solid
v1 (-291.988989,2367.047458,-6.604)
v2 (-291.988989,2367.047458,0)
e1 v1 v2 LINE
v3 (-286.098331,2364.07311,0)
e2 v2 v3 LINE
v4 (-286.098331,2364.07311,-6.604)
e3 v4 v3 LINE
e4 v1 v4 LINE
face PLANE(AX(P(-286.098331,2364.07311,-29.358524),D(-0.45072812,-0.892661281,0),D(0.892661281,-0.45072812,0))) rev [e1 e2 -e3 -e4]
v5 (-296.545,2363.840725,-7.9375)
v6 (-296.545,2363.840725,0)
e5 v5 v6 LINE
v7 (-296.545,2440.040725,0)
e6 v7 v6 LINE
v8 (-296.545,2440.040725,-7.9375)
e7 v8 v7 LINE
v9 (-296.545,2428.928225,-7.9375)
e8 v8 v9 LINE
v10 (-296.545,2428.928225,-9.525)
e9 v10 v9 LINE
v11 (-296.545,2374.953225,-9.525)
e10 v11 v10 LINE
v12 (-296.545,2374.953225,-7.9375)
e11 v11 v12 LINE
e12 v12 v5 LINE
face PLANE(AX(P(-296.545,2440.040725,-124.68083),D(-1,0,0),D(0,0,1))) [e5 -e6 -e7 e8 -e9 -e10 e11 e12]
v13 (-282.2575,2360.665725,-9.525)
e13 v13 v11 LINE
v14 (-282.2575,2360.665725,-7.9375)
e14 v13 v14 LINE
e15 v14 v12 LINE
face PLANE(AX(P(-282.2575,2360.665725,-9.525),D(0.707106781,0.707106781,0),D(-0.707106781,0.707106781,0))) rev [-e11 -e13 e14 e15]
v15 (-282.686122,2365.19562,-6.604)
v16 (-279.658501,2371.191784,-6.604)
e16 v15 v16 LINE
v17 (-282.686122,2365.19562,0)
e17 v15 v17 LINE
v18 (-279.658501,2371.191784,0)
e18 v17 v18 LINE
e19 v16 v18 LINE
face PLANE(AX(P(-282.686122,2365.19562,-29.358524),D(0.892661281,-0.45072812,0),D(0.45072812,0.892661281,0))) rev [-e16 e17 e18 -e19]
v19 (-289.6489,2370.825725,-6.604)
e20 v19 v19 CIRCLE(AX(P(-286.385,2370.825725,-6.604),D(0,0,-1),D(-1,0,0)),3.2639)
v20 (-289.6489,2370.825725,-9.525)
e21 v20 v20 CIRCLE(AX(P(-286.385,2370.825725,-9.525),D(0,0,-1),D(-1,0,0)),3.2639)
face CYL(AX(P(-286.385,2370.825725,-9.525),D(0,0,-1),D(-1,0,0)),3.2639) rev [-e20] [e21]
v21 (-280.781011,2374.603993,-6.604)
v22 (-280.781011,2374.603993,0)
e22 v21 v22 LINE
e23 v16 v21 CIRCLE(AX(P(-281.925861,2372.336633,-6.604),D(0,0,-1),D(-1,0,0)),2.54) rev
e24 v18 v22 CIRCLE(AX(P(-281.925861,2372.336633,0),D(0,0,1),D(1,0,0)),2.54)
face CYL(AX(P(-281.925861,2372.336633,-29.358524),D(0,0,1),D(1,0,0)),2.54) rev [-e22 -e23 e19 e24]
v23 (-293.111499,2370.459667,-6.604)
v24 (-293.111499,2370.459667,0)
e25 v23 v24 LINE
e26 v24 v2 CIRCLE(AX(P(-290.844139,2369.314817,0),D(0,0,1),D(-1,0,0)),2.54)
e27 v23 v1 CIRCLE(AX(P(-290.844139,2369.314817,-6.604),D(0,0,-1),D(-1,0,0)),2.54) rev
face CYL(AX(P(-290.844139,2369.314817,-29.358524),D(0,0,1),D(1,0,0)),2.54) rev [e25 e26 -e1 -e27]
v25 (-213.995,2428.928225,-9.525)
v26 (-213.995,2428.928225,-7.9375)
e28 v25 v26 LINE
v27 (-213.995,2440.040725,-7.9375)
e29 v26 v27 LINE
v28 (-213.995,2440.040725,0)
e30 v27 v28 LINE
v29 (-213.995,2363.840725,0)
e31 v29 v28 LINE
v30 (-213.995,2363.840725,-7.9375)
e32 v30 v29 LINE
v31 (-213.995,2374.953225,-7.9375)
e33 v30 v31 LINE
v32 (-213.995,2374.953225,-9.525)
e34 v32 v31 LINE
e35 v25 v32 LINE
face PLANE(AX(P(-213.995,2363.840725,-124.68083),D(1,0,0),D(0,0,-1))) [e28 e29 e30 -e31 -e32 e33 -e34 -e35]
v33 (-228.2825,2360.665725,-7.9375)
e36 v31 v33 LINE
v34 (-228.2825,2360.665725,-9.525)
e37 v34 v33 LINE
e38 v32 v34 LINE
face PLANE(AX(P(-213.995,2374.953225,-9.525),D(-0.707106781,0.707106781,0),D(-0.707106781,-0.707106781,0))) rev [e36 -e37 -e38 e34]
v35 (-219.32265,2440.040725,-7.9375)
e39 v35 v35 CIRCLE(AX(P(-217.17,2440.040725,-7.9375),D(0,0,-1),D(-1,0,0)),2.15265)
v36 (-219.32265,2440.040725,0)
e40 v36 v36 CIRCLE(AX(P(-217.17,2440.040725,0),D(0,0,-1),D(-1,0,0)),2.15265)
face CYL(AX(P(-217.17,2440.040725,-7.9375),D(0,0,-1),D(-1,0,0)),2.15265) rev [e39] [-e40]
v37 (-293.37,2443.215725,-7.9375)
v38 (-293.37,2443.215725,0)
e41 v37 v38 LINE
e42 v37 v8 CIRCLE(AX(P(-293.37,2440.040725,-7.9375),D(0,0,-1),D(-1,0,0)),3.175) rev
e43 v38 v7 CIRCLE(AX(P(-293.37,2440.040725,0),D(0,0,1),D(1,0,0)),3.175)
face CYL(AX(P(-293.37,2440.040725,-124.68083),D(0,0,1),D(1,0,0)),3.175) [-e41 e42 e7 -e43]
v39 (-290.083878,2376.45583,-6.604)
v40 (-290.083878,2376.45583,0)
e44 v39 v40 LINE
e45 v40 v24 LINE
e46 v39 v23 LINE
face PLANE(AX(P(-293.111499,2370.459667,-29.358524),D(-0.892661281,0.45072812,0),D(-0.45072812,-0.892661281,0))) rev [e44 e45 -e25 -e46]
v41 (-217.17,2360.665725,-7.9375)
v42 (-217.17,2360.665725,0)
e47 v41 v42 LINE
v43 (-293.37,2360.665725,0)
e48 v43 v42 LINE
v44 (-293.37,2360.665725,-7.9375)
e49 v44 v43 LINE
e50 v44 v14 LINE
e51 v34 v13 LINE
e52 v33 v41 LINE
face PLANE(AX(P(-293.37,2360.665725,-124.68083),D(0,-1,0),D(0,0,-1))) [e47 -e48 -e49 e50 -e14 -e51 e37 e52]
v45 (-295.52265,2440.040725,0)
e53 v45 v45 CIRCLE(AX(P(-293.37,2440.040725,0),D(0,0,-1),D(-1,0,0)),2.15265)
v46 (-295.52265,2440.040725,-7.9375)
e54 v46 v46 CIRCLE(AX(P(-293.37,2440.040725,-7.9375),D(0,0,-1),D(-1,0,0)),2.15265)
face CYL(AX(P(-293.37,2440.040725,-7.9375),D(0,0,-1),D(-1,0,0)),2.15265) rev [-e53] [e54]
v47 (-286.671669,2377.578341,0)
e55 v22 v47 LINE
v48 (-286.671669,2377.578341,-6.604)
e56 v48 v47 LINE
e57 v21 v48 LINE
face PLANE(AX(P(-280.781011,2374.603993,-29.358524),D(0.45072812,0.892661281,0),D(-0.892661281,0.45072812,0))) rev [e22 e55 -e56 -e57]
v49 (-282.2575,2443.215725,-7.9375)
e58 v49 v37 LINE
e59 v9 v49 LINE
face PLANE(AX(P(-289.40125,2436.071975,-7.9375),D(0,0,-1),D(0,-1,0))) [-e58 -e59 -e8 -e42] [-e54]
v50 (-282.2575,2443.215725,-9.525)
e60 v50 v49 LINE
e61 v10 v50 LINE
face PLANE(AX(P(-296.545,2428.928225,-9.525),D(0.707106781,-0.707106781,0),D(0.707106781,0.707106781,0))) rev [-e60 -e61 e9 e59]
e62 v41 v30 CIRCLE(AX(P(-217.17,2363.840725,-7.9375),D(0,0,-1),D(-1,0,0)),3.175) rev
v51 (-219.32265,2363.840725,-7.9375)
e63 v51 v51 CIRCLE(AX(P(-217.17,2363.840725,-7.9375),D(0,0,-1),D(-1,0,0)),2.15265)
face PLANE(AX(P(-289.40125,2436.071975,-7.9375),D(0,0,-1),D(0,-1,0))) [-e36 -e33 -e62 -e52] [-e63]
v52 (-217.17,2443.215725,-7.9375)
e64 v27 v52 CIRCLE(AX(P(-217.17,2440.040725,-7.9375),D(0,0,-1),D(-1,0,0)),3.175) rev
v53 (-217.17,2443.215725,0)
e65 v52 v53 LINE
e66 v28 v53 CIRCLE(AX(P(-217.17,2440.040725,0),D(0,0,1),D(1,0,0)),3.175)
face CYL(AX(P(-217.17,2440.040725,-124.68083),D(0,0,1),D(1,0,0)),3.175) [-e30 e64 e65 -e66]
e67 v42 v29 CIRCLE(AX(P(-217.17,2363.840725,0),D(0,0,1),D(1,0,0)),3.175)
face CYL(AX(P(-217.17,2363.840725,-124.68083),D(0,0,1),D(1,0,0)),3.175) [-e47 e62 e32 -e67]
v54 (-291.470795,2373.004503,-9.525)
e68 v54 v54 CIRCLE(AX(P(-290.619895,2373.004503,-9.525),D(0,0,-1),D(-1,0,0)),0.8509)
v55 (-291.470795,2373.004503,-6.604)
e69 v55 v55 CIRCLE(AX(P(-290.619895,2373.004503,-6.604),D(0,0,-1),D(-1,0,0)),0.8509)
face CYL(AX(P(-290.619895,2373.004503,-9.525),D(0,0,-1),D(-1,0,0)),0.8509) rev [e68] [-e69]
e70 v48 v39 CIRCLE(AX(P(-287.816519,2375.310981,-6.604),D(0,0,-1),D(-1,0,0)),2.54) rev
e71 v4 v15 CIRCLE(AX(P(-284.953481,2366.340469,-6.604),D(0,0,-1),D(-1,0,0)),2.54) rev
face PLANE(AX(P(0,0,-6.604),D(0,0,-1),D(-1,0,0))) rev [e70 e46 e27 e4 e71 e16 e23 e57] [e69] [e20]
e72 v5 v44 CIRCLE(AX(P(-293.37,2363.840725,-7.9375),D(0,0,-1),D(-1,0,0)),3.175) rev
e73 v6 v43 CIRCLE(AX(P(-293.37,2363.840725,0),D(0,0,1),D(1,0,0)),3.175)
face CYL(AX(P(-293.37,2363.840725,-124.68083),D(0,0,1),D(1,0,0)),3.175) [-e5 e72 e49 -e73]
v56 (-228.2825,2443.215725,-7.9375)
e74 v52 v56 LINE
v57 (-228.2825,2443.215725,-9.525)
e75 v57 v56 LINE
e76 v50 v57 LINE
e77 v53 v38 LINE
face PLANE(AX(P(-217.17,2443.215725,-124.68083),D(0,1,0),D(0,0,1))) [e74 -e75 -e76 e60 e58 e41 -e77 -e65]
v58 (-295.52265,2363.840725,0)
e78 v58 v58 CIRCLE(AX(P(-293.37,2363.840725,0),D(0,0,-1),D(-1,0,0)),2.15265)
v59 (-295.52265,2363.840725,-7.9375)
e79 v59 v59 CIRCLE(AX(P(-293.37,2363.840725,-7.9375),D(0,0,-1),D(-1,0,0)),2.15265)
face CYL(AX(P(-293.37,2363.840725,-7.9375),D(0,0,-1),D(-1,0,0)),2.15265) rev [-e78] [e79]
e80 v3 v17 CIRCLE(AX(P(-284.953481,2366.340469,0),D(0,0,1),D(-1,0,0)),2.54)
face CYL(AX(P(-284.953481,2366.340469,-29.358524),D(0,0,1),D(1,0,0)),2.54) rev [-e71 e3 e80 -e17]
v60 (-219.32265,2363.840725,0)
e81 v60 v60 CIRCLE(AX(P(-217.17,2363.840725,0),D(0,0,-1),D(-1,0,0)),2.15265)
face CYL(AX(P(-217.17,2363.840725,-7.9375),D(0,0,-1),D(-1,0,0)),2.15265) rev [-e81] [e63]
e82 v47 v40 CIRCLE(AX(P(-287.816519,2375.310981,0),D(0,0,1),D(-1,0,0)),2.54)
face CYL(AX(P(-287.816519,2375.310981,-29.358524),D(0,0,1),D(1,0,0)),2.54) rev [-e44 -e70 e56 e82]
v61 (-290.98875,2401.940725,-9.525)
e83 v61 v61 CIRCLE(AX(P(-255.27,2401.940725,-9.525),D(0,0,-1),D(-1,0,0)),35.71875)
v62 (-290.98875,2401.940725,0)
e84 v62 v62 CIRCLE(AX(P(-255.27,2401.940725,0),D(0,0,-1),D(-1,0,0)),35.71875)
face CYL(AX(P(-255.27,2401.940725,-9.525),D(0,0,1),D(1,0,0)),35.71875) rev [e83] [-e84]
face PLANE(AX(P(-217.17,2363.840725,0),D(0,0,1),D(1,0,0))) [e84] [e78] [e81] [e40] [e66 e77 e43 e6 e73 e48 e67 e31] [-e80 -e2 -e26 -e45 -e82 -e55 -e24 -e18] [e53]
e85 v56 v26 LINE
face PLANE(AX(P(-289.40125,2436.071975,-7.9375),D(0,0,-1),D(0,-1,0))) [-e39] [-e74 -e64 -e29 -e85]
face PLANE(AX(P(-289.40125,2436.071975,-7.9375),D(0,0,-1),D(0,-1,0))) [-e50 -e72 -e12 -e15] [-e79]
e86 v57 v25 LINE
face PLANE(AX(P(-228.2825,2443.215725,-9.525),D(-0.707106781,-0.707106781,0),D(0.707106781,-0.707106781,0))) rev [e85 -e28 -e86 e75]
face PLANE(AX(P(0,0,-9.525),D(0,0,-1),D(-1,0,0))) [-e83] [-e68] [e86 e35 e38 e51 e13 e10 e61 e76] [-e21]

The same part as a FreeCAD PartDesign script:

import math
import FreeCAD as App
import Part
import Sketcher
from FreeCAD import Vector
Q = App.Units.Quantity


def add_polygon(sketch, points):
    """Adds a closed chain of lines whose ends are joined by coincident constraints."""
    first, n = sketch.GeometryCount, len(points)
    for a, b in zip(points, points[1:] + points[:1]):
        sketch.addGeometry(Part.LineSegment(App.Vector(*a, 0), App.Vector(*b, 0)), False)
    for i in range(n):
        sketch.addConstraint(Sketcher.Constraint("Coincident", first + i, 2, first + (i + 1) % n, 1))

doc = App.newDocument("Part")
body = doc.addObject("PartDesign::Body", "Body")

sketch1 = doc.addObject("Sketcher::SketchObject", "Sketch")
body.addObject(sketch1)
sketch1.AttachmentSupport = (doc.XY_Plane, [""])
sketch1.MapMode = "FlatFace"
sketch1.addGeometry(Part.LineSegment(Vector(-214, 2363.8, 0), Vector(-214, 2440, 0)), False)
sketch1.addGeometry(Part.ArcOfCircle(Part.Circle(Vector(-217.2, 2440, 0), Vector(0, 0, 1), 3.2), math.radians(0), math.radians(90)), False)
sketch1.addGeometry(Part.LineSegment(Vector(-217.2, 2443.2, 0), Vector(-293.4, 2443.2, 0)), False)
sketch1.addGeometry(Part.ArcOfCircle(Part.Circle(Vector(-293.4, 2440, 0), Vector(0, 0, 1), 3.2), math.radians(90), math.radians(180)), False)
sketch1.addGeometry(Part.LineSegment(Vector(-296.5, 2440, 0), Vector(-296.5, 2363.8, 0)), False)
sketch1.addGeometry(Part.ArcOfCircle(Part.Circle(Vector(-293.4, 2363.8, 0), Vector(0, 0, 1), 3.2), math.radians(-180), math.radians(-90)), False)
sketch1.addGeometry(Part.LineSegment(Vector(-293.4, 2360.7, 0), Vector(-217.2, 2360.7, 0)), False)
sketch1.addGeometry(Part.ArcOfCircle(Part.Circle(Vector(-217.2, 2363.8, 0), Vector(0, 0, 1), 3.2), math.radians(-90), math.radians(0)), False)
sketch1.addConstraint(Sketcher.Constraint("Tangent", 0, 2, 1, 1))
sketch1.addConstraint(Sketcher.Constraint("Tangent", 1, 2, 2, 1))
sketch1.addConstraint(Sketcher.Constraint("Tangent", 2, 2, 3, 1))
sketch1.addConstraint(Sketcher.Constraint("Tangent", 3, 2, 4, 1))
sketch1.addConstraint(Sketcher.Constraint("Tangent", 4, 2, 5, 1))
sketch1.addConstraint(Sketcher.Constraint("Tangent", 5, 2, 6, 1))
sketch1.addConstraint(Sketcher.Constraint("Tangent", 6, 2, 7, 1))
sketch1.addConstraint(Sketcher.Constraint("Tangent", 7, 2, 0, 1))
sketch1.addConstraint(Sketcher.Constraint("Vertical", 0))
sketch1.addConstraint(Sketcher.Constraint("Horizontal", 2))
sketch1.addConstraint(Sketcher.Constraint("Vertical", 4))
sketch1.addConstraint(Sketcher.Constraint("Horizontal", 6))
sketch1.addConstraint(Sketcher.Constraint("Equal", 1, 3))
sketch1.addConstraint(Sketcher.Constraint("Equal", 3, 5))
sketch1.addConstraint(Sketcher.Constraint("Equal", 5, 7))
sketch1.addConstraint(Sketcher.Constraint("Equal", 6, 0))
sketch1.addConstraint(Sketcher.Constraint("DistanceX", 2, 2, 2, 1, Q("3 in")))
sketch1.addConstraint(Sketcher.Constraint("Radius", 1, Q("0.125 in")))
sketch1.addConstraint(Sketcher.Constraint("DistanceX", 1, 3, -1, 1, Q("8.55 in")))
sketch1.addConstraint(Sketcher.Constraint("DistanceY", -1, 1, 1, 3, Q("2440.040725 mm")))
pad1 = doc.addObject("PartDesign::Pad", "Pad")
body.addObject(pad1)
pad1.Profile = sketch1
pad1.Length = Q("0.3125 in")
pad1.Reversed = True

sketch2 = doc.addObject("Sketcher::SketchObject", "Sketch001")
body.addObject(sketch2)
sketch2.AttachmentSupport = (doc.XY_Plane, [""])
sketch2.MapMode = "FlatFace"
sketch2.AttachmentOffset = App.Placement(Vector(0, 0, -0.3125 * 25.4), App.Rotation())
add_polygon(sketch2, [(-282, 2361), (-297, 2375), (-297, 2429), (-282, 2443), (-228, 2443), (-214, 2429), (-214, 2375), (-228, 2361)])
sketch2.addGeometry(Part.Circle(Vector(-255, 2402, 0), Vector(0, 0, 1), 36), False)
sketch2.addConstraint(Sketcher.Constraint("Vertical", 1))
sketch2.addConstraint(Sketcher.Constraint("Horizontal", 3))
sketch2.addConstraint(Sketcher.Constraint("Vertical", 5))
sketch2.addConstraint(Sketcher.Constraint("Horizontal", 7))
sketch2.addConstraint(Sketcher.Constraint("Perpendicular", 0, 2))
sketch2.addConstraint(Sketcher.Constraint("Perpendicular", 2, 4))
sketch2.addConstraint(Sketcher.Constraint("Perpendicular", 4, 6))
sketch2.addConstraint(Sketcher.Constraint("Horizontal", 1, 2, 4, 2))
sketch2.addConstraint(Sketcher.Constraint("Horizontal", 0, 2, 5, 2))
sketch2.addConstraint(Sketcher.Constraint("Vertical", 3, 2, 6, 2))
sketch2.addConstraint(Sketcher.Constraint("Vertical", 2, 2, 7, 2))
sketch2.addConstraint(Sketcher.Constraint("Equal", 7, 1))
sketch2.addConstraint(Sketcher.Constraint("Diameter", 8, Q("2.8125 in")))
sketch2.addConstraint(Sketcher.Constraint("DistanceX", 3, 1, 3, 2, Q("2.125 in")))
sketch2.addConstraint(Sketcher.Constraint("DistanceX", 8, 3, -1, 1, Q("10.05 in")))
sketch2.addConstraint(Sketcher.Constraint("DistanceX", 1, 2, 4, 2, Q("3.25 in")))
sketch2.addConstraint(Sketcher.Constraint("DistanceX", 0, 2, -1, 1, Q("11.675 in")))
sketch2.addConstraint(Sketcher.Constraint("DistanceY", 0, 2, 8, 3, Q("1.0625 in")))
sketch2.addConstraint(Sketcher.Constraint("DistanceY", -1, 1, 8, 3, Q("2401.940725 mm")))
pad2 = doc.addObject("PartDesign::Pad", "Pad001")
body.addObject(pad2)
pad2.Profile = sketch2
pad2.Length = Q("0.0625 in")
pad2.Reversed = True

sketch3 = doc.addObject("Sketcher::SketchObject", "Sketch002")
body.addObject(sketch3)
sketch3.AttachmentSupport = (doc.XY_Plane, [""])
sketch3.MapMode = "FlatFace"
sketch3.AttachmentOffset = App.Placement(Vector(0, 0, -0.3125 * 25.4), App.Rotation())
sketch3.addGeometry(Part.Circle(Vector(-255, 2402, 0), Vector(0, 0, 1), 36), False)
sketch3.addConstraint(Sketcher.Constraint("Diameter", 0, Q("2.8125 in")))
sketch3.addConstraint(Sketcher.Constraint("DistanceX", 0, 3, -1, 1, Q("10.05 in")))
sketch3.addConstraint(Sketcher.Constraint("DistanceY", -1, 1, 0, 3, Q("2401.940725 mm")))
pocket1 = doc.addObject("PartDesign::Pocket", "Pocket")
body.addObject(pocket1)
pocket1.Profile = sketch3
pocket1.Type = "ThroughAll"
pocket1.Midplane = True

sketch4 = doc.addObject("Sketcher::SketchObject", "Sketch003")
body.addObject(sketch4)
sketch4.AttachmentSupport = (doc.XY_Plane, [""])
sketch4.MapMode = "FlatFace"
sketch4.AttachmentOffset = App.Placement(Vector(0, 0, -0.3125 * 25.4), App.Rotation())
sketch4.addGeometry(Part.Circle(Vector(-217.2, 2440, 0), Vector(0, 0, 1), 2.2), False)
sketch4.addGeometry(Part.Circle(Vector(-293.4, 2440, 0), Vector(0, 0, 1), 2.2), False)
sketch4.addGeometry(Part.Circle(Vector(-293.4, 2363.8, 0), Vector(0, 0, 1), 2.2), False)
sketch4.addGeometry(Part.Circle(Vector(-217.2, 2363.8, 0), Vector(0, 0, 1), 2.2), False)
sketch4.addConstraint(Sketcher.Constraint("Equal", 0, 1))
sketch4.addConstraint(Sketcher.Constraint("Equal", 1, 2))
sketch4.addConstraint(Sketcher.Constraint("Equal", 2, 3))
sketch4.addConstraint(Sketcher.Constraint("Horizontal", 0, 3, 1, 3))
sketch4.addConstraint(Sketcher.Constraint("Horizontal", 2, 3, 3, 3))
sketch4.addConstraint(Sketcher.Constraint("Vertical", 1, 3, 2, 3))
sketch4.addConstraint(Sketcher.Constraint("Vertical", 0, 3, 3, 3))
sketch4.addConstraint(Sketcher.Constraint("DistanceX", 1, 3, 0, 3, Q("3 in")))
sketch4.addConstraint(Sketcher.Constraint("DistanceY", 2, 3, 1, 3, Q("3 in")))
sketch4.addConstraint(Sketcher.Constraint("Diameter", 0, Q("0.1695 in")))
sketch4.addConstraint(Sketcher.Constraint("DistanceX", 0, 3, -1, 1, Q("8.55 in")))
sketch4.addConstraint(Sketcher.Constraint("DistanceY", -1, 1, 0, 3, Q("2440.040725 mm")))
doc.recompute()
hole = doc.addObject("PartDesign::Hole", "Hole")
body.addObject(hole)
hole.Profile = sketch4
hole.ThreadType = "None"
hole.Diameter = Q("0.1695 in")
hole.DepthType = "ThroughAll"
hole.Reversed = True

sketch5 = doc.addObject("Sketcher::SketchObject", "Sketch004")
body.addObject(sketch5)
sketch5.AttachmentSupport = (doc.XY_Plane, [""])
sketch5.MapMode = "FlatFace"
sketch5.addGeometry(Part.LineSegment(Vector(-292, 2367, 0), Vector(-286.1, 2364.1, 0)), False)
sketch5.addGeometry(Part.ArcOfCircle(Part.Circle(Vector(-285, 2366.3, 0), Vector(0, 0, 1), 2.5), math.radians(-117), math.radians(-27)), False)
sketch5.addGeometry(Part.LineSegment(Vector(-282.7, 2365.2, 0), Vector(-279.7, 2371.2, 0)), False)
sketch5.addGeometry(Part.ArcOfCircle(Part.Circle(Vector(-281.9, 2372.3, 0), Vector(0, 0, 1), 2.5), math.radians(-27), math.radians(63)), False)
sketch5.addGeometry(Part.LineSegment(Vector(-280.8, 2374.6, 0), Vector(-286.7, 2377.6, 0)), False)
sketch5.addGeometry(Part.ArcOfCircle(Part.Circle(Vector(-287.8, 2375.3, 0), Vector(0, 0, 1), 2.5), math.radians(63), math.radians(153)), False)
sketch5.addGeometry(Part.LineSegment(Vector(-290.1, 2376.5, 0), Vector(-293.1, 2370.5, 0)), False)
sketch5.addGeometry(Part.ArcOfCircle(Part.Circle(Vector(-290.8, 2369.3, 0), Vector(0, 0, 1), 2.5), math.radians(153), math.radians(243)), False)
sketch5.addConstraint(Sketcher.Constraint("Tangent", 0, 2, 1, 1))
sketch5.addConstraint(Sketcher.Constraint("Tangent", 1, 2, 2, 1))
sketch5.addConstraint(Sketcher.Constraint("Tangent", 2, 2, 3, 1))
sketch5.addConstraint(Sketcher.Constraint("Tangent", 3, 2, 4, 1))
sketch5.addConstraint(Sketcher.Constraint("Tangent", 4, 2, 5, 1))
sketch5.addConstraint(Sketcher.Constraint("Tangent", 5, 2, 6, 1))
sketch5.addConstraint(Sketcher.Constraint("Tangent", 6, 2, 7, 1))
sketch5.addConstraint(Sketcher.Constraint("Tangent", 7, 2, 0, 1))
sketch5.addConstraint(Sketcher.Constraint("Equal", 1, 3))
sketch5.addConstraint(Sketcher.Constraint("Equal", 3, 5))
sketch5.addConstraint(Sketcher.Constraint("Equal", 5, 7))
sketch5.addConstraint(Sketcher.Constraint("Perpendicular", 0, 2))
sketch5.addConstraint(Sketcher.Constraint("Perpendicular", 2, 4))
sketch5.addConstraint(Sketcher.Constraint("Perpendicular", 4, 6))
sketch5.addConstraint(Sketcher.Constraint("Radius", 1, Q("0.1 in")))
sketch5.addConstraint(Sketcher.Constraint("DistanceX", 2, 2, -1, 1, Q("279.658501 mm")))
sketch5.addConstraint(Sketcher.Constraint("DistanceX", 6, 2, -1, 1, Q("293.111499 mm")))
sketch5.addConstraint(Sketcher.Constraint("DistanceX", 1, 3, -1, 1, Q("284.953481 mm")))
sketch5.addConstraint(Sketcher.Constraint("DistanceY", -1, 1, 1, 3, Q("2366.340469 mm")))
sketch5.addConstraint(Sketcher.Constraint("DistanceX", 3, 3, -1, 1, Q("281.925861 mm")))
pocket2 = doc.addObject("PartDesign::Pocket", "Pocket001")
body.addObject(pocket2)
pocket2.Profile = sketch5
pocket2.Length = Q("0.26 in")

sketch6 = doc.addObject("Sketcher::SketchObject", "Sketch005")
body.addObject(sketch6)
sketch6.AttachmentSupport = (doc.XY_Plane, [""])
sketch6.MapMode = "FlatFace"
sketch6.AttachmentOffset = App.Placement(Vector(0, 0, -0.375 * 25.4), App.Rotation())
sketch6.addGeometry(Part.Circle(Vector(-286.4, 2370.8, 0), Vector(0, 0, 1), 3.3), False)
sketch6.addConstraint(Sketcher.Constraint("Diameter", 0, Q("0.257 in")))
sketch6.addConstraint(Sketcher.Constraint("DistanceX", 0, 3, -1, 1, Q("11.275 in")))
sketch6.addConstraint(Sketcher.Constraint("DistanceY", -1, 1, 0, 3, Q("2370.825725 mm")))
doc.recompute()
hole2 = doc.addObject("PartDesign::Hole", "Hole001")
body.addObject(hole2)
hole2.Profile = sketch6
hole2.ThreadType = "None"
hole2.Diameter = Q("0.257 in")
hole2.DepthType = "ThroughAll"
hole2.Reversed = True

sketch7 = doc.addObject("Sketcher::SketchObject", "Sketch006")
body.addObject(sketch7)
sketch7.AttachmentSupport = (doc.XY_Plane, [""])
sketch7.MapMode = "FlatFace"
sketch7.AttachmentOffset = App.Placement(Vector(0, 0, -0.375 * 25.4), App.Rotation())
sketch7.addGeometry(Part.Circle(Vector(-290.619895, 2373.004503, 0), Vector(0, 0, 1), 0.8509), False)
sketch7.addConstraint(Sketcher.Constraint("Diameter", 0, Q("0.067 in")))
sketch7.addConstraint(Sketcher.Constraint("DistanceX", 0, 3, -1, 1, Q("290.619895 mm")))
sketch7.addConstraint(Sketcher.Constraint("DistanceY", -1, 1, 0, 3, Q("2373.004503 mm")))
doc.recompute()
hole3 = doc.addObject("PartDesign::Hole", "Hole002")
body.addObject(hole3)
hole3.Profile = sketch7
hole3.ThreadType = "None"
hole3.Diameter = Q("0.067 in")
hole3.DepthType = "ThroughAll"
hole3.Reversed = True

doc.recompute()
